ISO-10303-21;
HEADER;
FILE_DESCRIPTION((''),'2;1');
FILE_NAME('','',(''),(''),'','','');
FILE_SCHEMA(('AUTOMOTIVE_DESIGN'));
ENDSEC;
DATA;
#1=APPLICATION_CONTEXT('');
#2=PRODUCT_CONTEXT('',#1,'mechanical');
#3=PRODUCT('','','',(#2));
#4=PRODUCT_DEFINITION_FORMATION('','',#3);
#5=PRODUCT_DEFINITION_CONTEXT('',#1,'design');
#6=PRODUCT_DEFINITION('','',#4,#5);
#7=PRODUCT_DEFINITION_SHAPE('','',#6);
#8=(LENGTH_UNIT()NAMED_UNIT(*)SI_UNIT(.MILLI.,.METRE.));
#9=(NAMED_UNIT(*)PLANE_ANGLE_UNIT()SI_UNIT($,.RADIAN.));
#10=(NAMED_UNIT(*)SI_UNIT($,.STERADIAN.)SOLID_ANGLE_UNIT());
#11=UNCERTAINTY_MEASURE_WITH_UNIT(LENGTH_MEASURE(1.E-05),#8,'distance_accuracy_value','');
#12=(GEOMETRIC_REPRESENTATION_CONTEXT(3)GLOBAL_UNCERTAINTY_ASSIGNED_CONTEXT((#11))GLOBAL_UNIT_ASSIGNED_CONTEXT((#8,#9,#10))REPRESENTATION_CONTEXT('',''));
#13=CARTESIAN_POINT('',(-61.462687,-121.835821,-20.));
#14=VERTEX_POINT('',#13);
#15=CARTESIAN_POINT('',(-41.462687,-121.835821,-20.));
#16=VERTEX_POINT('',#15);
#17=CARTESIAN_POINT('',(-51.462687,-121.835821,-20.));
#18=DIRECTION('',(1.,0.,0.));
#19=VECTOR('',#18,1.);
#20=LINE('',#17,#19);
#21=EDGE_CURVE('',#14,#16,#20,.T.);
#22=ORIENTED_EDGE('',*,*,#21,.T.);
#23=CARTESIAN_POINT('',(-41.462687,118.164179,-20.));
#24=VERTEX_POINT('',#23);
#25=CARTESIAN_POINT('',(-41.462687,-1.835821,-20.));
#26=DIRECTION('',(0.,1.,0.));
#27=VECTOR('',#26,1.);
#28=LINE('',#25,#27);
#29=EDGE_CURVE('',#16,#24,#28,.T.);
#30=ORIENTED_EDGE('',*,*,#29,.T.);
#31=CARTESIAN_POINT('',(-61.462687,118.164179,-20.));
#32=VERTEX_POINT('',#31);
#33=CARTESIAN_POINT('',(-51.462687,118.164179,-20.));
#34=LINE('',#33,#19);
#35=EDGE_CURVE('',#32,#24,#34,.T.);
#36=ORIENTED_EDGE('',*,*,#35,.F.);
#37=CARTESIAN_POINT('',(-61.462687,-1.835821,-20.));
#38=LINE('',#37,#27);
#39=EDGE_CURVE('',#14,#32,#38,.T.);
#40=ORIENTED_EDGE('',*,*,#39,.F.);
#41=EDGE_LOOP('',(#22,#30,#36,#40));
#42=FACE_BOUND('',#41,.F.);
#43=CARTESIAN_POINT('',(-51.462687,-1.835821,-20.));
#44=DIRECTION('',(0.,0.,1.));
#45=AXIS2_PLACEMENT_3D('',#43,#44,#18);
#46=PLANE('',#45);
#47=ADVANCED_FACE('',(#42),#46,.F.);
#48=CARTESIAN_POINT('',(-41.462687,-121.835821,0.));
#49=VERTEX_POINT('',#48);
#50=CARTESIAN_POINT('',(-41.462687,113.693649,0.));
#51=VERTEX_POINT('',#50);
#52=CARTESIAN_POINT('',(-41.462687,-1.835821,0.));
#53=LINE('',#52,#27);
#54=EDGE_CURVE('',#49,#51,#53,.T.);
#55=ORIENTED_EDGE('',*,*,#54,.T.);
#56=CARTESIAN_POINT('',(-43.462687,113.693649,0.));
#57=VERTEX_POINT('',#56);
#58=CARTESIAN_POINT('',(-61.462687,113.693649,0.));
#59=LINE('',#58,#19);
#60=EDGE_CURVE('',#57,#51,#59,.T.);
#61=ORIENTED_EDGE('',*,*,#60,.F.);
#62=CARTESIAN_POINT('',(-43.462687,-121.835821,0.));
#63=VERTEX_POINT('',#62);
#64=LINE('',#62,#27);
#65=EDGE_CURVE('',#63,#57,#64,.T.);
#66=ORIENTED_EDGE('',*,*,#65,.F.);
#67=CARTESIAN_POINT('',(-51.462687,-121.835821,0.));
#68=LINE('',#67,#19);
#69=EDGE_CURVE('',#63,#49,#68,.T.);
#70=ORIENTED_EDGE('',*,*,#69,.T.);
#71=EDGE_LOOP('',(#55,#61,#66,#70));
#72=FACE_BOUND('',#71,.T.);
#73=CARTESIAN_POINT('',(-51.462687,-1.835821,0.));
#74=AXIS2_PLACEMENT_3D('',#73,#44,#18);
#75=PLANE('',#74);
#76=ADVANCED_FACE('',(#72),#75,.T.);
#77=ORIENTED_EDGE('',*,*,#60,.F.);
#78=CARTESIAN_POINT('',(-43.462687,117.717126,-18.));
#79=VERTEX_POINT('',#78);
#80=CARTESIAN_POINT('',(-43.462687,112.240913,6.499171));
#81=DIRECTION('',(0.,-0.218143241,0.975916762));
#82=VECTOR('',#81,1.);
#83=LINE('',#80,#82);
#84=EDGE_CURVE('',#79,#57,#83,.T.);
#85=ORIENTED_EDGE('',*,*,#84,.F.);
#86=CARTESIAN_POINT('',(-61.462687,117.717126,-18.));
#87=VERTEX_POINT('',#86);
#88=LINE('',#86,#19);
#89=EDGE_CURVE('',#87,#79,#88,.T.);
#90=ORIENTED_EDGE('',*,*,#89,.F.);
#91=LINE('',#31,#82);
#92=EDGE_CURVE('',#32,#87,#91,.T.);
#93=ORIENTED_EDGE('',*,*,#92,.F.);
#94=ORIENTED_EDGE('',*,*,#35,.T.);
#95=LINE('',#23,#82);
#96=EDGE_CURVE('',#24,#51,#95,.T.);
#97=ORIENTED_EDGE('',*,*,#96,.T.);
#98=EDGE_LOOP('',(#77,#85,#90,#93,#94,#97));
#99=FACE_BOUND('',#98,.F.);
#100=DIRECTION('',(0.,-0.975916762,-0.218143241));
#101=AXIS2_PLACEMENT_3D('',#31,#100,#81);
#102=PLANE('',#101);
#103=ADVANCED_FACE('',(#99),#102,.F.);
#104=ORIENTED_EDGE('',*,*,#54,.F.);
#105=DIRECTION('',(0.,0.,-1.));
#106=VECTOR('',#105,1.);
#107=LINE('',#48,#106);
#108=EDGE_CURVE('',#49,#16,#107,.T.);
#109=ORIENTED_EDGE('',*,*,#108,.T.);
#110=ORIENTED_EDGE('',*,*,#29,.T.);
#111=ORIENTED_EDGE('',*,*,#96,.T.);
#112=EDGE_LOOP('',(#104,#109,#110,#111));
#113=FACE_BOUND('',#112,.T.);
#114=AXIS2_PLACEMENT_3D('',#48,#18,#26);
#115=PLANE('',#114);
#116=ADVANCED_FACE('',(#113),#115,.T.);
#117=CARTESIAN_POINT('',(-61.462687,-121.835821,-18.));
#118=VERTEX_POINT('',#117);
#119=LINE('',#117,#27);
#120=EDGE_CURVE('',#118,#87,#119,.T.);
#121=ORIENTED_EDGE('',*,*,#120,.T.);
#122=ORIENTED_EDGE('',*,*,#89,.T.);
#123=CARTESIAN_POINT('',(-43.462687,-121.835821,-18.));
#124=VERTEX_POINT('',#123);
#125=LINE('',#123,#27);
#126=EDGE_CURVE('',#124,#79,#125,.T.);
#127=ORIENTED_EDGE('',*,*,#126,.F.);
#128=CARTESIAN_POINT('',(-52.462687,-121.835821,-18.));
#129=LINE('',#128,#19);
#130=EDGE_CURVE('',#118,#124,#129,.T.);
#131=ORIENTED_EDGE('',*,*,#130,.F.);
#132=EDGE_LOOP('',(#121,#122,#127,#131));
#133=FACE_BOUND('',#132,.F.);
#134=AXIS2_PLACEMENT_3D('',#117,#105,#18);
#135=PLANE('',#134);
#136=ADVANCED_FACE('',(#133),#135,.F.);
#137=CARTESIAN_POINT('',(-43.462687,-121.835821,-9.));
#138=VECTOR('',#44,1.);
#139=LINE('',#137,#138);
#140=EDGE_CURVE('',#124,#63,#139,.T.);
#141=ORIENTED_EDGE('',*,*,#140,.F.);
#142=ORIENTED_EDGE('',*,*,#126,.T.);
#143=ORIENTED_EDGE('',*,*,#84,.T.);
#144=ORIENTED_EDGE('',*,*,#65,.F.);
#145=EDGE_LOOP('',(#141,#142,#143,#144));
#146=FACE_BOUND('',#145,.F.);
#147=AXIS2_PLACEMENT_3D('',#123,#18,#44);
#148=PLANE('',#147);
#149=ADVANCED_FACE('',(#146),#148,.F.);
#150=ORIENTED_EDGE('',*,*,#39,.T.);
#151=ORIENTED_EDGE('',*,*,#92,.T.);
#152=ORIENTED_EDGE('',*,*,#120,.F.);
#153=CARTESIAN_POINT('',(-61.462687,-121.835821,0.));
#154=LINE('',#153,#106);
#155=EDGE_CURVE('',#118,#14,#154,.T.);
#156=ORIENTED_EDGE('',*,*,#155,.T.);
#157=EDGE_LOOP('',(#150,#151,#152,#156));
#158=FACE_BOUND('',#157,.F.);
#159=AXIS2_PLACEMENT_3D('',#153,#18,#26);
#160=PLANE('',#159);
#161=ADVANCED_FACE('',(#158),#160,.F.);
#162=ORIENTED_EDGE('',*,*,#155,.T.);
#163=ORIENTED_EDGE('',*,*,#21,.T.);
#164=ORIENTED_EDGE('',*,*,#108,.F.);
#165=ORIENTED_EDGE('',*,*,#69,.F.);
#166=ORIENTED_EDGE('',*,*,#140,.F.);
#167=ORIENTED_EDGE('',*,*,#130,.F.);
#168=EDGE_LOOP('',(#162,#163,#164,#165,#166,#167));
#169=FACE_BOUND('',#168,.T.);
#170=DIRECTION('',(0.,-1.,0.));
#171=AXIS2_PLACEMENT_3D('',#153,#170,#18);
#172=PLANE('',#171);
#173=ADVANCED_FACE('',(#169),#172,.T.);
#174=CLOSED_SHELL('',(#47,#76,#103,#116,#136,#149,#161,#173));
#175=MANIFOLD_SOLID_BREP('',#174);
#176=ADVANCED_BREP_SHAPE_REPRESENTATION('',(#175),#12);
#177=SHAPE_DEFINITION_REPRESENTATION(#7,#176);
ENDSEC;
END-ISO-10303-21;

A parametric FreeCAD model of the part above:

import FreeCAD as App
import Part
import Sketcher

V = App.Vector
Q = App.Units.Quantity

doc = App.newDocument("Part")
params = doc.addObject("Spreadsheet::Sheet", "Params")
for row, (alias, value) in enumerate([
    ("sketch1_width", "20 mm"),
    ("sketch1_height", "240 mm"),
    ("pad1_length", "20 mm"),
    ("sketch2_height", "20 mm"),
    ("pocket1_length", "20 mm"),
    ("sketch3_width", "18 mm"),
    ("pocket2_length", "290 mm"),
], start=1):
    params.set(f"A{row}", alias)
    params.set(f"B{row}", "=" + value)
    params.setAlias(f"B{row}", alias)

body = doc.addObject("PartDesign::Body", "Body")

sketch1 = body.newObject("Sketcher::SketchObject", "Sketch")
sketch1.AttachmentSupport = (doc.getObject("XY_Plane"), [""])
sketch1.MapMode = "FlatFace"
sketch1.addGeometry(Part.LineSegment(V(-61.462687, 118.164179, 0), V(-61.462687, -121.835821, 0)), False)
sketch1.addGeometry(Part.LineSegment(V(-61.462687, -121.835821, 0), V(-41.462687, -121.835821, 0)), False)
sketch1.addGeometry(Part.LineSegment(V(-41.462687, -121.835821, 0), V(-41.462687, 118.164179, 0)), False)
sketch1.addGeometry(Part.LineSegment(V(-41.462687, 118.164179, 0), V(-61.462687, 118.164179, 0)), False)
sketch1.addConstraint(Sketcher.Constraint("Coincident", 0, 2, 1, 1))
sketch1.addConstraint(Sketcher.Constraint("Coincident", 1, 2, 2, 1))
sketch1.addConstraint(Sketcher.Constraint("Coincident", 2, 2, 3, 1))
sketch1.addConstraint(Sketcher.Constraint("Coincident", 3, 2, 0, 1))
sketch1.addConstraint(Sketcher.Constraint("Vertical", 0))
sketch1.addConstraint(Sketcher.Constraint("Horizontal", 1))
sketch1.addConstraint(Sketcher.Constraint("Vertical", 2))
sketch1.addConstraint(Sketcher.Constraint("Horizontal", 3))
sketch1.addConstraint(Sketcher.Constraint("DistanceX", 1, 1, 1, 2, Q("20 mm")))
sketch1.addConstraint(Sketcher.Constraint("DistanceY", 0, 2, 0, 1, Q("240 mm")))
sketch1.addConstraint(Sketcher.Constraint("DistanceY", 0, 2, -1, 1, Q("121.835821 mm")))
sketch1.addConstraint(Sketcher.Constraint("DistanceX", 0, 2, -1, 1, Q("61.462687 mm")))
sketch1.setExpression("Constraints[8]", "Params.sketch1_width")
sketch1.setExpression("Constraints[9]", "Params.sketch1_height")
pad1 = body.newObject("PartDesign::Pad", "Pad")
pad1.Profile = sketch1
pad1.setExpression("Length", "Params.pad1_length")
pad1.Reversed = True

sketch2 = body.newObject("Sketcher::SketchObject", "Sketch001")
sketch2.AttachmentSupport = (doc.getObject("YZ_Plane"), [""])
sketch2.MapMode = "FlatFace"
sketch2.AttachmentOffset = App.Placement(V(0, 0, -61.462687), App.Rotation())
sketch2.addGeometry(Part.LineSegment(V(118.164179, -20, 0), V(113.693649, 0, 0)), False)
sketch2.addGeometry(Part.LineSegment(V(113.693649, 0, 0), V(118.164179, 0, 0)), False)
sketch2.addGeometry(Part.LineSegment(V(118.164179, 0, 0), V(118.164179, -20, 0)), False)
sketch2.addConstraint(Sketcher.Constraint("Coincident", 0, 2, 1, 1))
sketch2.addConstraint(Sketcher.Constraint("Coincident", 1, 2, 2, 1))
sketch2.addConstraint(Sketcher.Constraint("Coincident", 2, 2, 0, 1))
sketch2.addConstraint(Sketcher.Constraint("Horizontal", 1))
sketch2.addConstraint(Sketcher.Constraint("Vertical", 2))
sketch2.addConstraint(Sketcher.Constraint("PointOnObject", 0, 2, -1))
sketch2.addConstraint(Sketcher.Constraint("DistanceY", 2, 2, 2, 1, Q("20 mm")))
sketch2.addConstraint(Sketcher.Constraint("Angle", 0, Q("102.6 deg")))
sketch2.addConstraint(Sketcher.Constraint("DistanceX", -1, 1, 0, 2, Q("113.693649 mm")))
sketch2.setExpression("Constraints[6]", "Params.sketch2_height")
pocket1 = body.newObject("PartDesign::Pocket", "Pocket")
pocket1.Profile = sketch2
pocket1.setExpression("Length", "Params.pocket1_length")
pocket1.Reversed = True

sketch3 = body.newObject("Sketcher::SketchObject", "Sketch002")
sketch3.AttachmentSupport = (doc.getObject("XZ_Plane"), [""])
sketch3.MapMode = "FlatFace"
sketch3.AttachmentOffset = App.Placement(V(0, 0, 121.835821), App.Rotation())
sketch3.addGeometry(Part.LineSegment(V(-61.462687, 0, 0), V(-61.462687, -18, 0)), False)
sketch3.addGeometry(Part.LineSegment(V(-61.462687, -18, 0), V(-43.462687, -18, 0)), False)
sketch3.addGeometry(Part.LineSegment(V(-43.462687, -18, 0), V(-43.462687, 0, 0)), False)
sketch3.addGeometry(Part.LineSegment(V(-43.462687, 0, 0), V(-61.462687, 0, 0)), False)
sketch3.addConstraint(Sketcher.Constraint("Coincident", 0, 2, 1, 1))
sketch3.addConstraint(Sketcher.Constraint("Coincident", 1, 2, 2, 1))
sketch3.addConstraint(Sketcher.Constraint("Coincident", 2, 2, 3, 1))
sketch3.addConstraint(Sketcher.Constraint("Coincident", 3, 2, 0, 1))
sketch3.addConstraint(Sketcher.Constraint("Vertical", 0))
sketch3.addConstraint(Sketcher.Constraint("Horizontal", 1))
sketch3.addConstraint(Sketcher.Constraint("Vertical", 2))
sketch3.addConstraint(Sketcher.Constraint("Horizontal", 3))
sketch3.addConstraint(Sketcher.Constraint("PointOnObject", 2, 2, -1))
sketch3.addConstraint(Sketcher.Constraint("Equal", 3, 0))
sketch3.addConstraint(Sketcher.Constraint("DistanceX", 1, 1, 1, 2, Q("18 mm")))
sketch3.addConstraint(Sketcher.Constraint("DistanceX", 0, 2, -1, 1, Q("61.462687 mm")))
sketch3.setExpression("Constraints[10]", "Params.sketch3_width")
pocket2 = body.newObject("PartDesign::Pocket", "Pocket001")
pocket2.Profile = sketch3
pocket2.setExpression("Length", "Params.pocket2_length")

doc.recompute()
